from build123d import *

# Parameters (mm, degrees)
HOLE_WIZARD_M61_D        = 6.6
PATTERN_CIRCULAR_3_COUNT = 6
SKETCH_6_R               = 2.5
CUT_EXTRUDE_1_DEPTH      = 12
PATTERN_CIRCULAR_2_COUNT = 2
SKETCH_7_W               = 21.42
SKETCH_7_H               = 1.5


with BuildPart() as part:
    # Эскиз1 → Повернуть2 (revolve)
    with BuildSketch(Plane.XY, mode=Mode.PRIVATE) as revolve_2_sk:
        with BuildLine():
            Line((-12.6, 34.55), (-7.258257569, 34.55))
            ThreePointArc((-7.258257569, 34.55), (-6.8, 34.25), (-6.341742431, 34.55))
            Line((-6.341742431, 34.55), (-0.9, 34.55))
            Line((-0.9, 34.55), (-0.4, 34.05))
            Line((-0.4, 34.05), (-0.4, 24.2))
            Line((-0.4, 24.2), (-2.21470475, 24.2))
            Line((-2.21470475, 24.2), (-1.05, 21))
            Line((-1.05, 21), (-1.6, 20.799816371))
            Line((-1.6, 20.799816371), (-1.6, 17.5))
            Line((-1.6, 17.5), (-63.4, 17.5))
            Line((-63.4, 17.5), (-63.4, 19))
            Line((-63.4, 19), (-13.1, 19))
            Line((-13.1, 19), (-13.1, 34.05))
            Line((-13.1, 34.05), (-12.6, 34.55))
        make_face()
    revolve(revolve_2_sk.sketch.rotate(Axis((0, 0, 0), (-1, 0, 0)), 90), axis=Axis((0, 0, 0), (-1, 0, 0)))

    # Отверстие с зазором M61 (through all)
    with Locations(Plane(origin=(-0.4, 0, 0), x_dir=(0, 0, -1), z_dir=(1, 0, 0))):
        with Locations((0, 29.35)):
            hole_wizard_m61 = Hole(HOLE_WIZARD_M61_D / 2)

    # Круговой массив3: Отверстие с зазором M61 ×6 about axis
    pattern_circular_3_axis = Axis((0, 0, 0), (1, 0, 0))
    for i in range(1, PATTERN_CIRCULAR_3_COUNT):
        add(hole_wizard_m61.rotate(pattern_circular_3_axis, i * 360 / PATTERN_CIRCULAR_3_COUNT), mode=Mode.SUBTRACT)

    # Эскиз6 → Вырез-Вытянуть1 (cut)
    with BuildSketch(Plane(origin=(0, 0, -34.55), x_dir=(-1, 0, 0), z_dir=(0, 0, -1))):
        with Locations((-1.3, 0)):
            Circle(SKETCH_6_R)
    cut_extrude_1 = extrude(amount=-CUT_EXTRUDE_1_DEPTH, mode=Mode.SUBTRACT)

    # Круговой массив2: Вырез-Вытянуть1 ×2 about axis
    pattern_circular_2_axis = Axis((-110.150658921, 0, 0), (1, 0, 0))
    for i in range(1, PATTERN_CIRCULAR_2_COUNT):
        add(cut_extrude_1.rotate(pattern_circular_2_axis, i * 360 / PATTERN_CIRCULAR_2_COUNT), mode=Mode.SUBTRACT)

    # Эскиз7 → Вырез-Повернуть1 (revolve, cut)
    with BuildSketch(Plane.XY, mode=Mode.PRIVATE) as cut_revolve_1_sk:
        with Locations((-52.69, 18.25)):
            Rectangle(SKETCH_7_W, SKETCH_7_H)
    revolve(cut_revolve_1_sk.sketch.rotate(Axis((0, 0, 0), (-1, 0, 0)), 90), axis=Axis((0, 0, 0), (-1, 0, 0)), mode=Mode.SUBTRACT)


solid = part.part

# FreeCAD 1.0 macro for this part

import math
import FreeCAD as App
import Part
import Sketcher
Q = App.Units.Quantity


def add_polygon(sketch, points):
    """Adds a closed chain of lines whose ends are joined by coincident constraints."""
    first, n = sketch.GeometryCount, len(points)
    for a, b in zip(points, points[1:] + points[:1]):
        sketch.addGeometry(Part.LineSegment(App.Vector(*a, 0), App.Vector(*b, 0)), False)
    for i in range(n):
        sketch.addConstraint(Sketcher.Constraint("Coincident", first + i, 2, first + (i + 1) % n, 1))

doc = App.newDocument("Part")
body = doc.addObject("PartDesign::Body", "Body")

# Sketch on XY plane
sketch1 = doc.addObject("Sketcher::SketchObject", "Sketch")
body.addObject(sketch1)
sketch1.AttachmentSupport = (doc.XY_Plane, [""])
sketch1.MapMode = "FlatFace"
sketch1.addGeometry(Part.LineSegment(App.Vector(-7.26, 34.55, 0), App.Vector(-12.6, 34.55, 0)), False)
sketch1.addGeometry(Part.LineSegment(App.Vector(-12.6, 34.55, 0), App.Vector(-13.1, 34.05, 0)), False)
sketch1.addGeometry(Part.LineSegment(App.Vector(-13.1, 34.05, 0), App.Vector(-13.1, 19, 0)), False)
sketch1.addGeometry(Part.LineSegment(App.Vector(-13.1, 19, 0), App.Vector(-63.4, 19, 0)), False)
sketch1.addGeometry(Part.LineSegment(App.Vector(-63.4, 19, 0), App.Vector(-63.4, 17.5, 0)), False)
sketch1.addGeometry(Part.LineSegment(App.Vector(-63.4, 17.5, 0), App.Vector(-1.6, 17.5, 0)), False)
sketch1.addGeometry(Part.LineSegment(App.Vector(-1.6, 17.5, 0), App.Vector(-1.6, 20.8, 0)), False)
sketch1.addGeometry(Part.LineSegment(App.Vector(-1.6, 20.8, 0), App.Vector(-1.05, 21, 0)), False)
sketch1.addGeometry(Part.LineSegment(App.Vector(-1.05, 21, 0), App.Vector(-2.21, 24.2, 0)), False)
sketch1.addGeometry(Part.LineSegment(App.Vector(-2.21, 24.2, 0), App.Vector(-0.4, 24.2, 0)), False)
sketch1.addGeometry(Part.LineSegment(App.Vector(-0.4, 24.2, 0), App.Vector(-0.4, 34.05, 0)), False)
sketch1.addGeometry(Part.LineSegment(App.Vector(-0.4, 34.05, 0), App.Vector(-0.9, 34.55, 0)), False)
sketch1.addGeometry(Part.LineSegment(App.Vector(-0.9, 34.55, 0), App.Vector(-6.34, 34.55, 0)), False)
sketch1.addGeometry(Part.ArcOfCircle(Part.Circle(App.Vector(-6.8, 34.75, 0), App.Vector(0, 0, 1), 0.5), math.radians(-156), math.radians(-24)), False)
sketch1.addConstraint(Sketcher.Constraint("Coincident", 0, 2, 1, 1))
sketch1.addConstraint(Sketcher.Constraint("Coincident", 1, 2, 2, 1))
sketch1.addConstraint(Sketcher.Constraint("Coincident", 2, 2, 3, 1))
sketch1.addConstraint(Sketcher.Constraint("Coincident", 3, 2, 4, 1))
sketch1.addConstraint(Sketcher.Constraint("Coincident", 4, 2, 5, 1))
sketch1.addConstraint(Sketcher.Constraint("Coincident", 5, 2, 6, 1))
sketch1.addConstraint(Sketcher.Constraint("Coincident", 6, 2, 7, 1))
sketch1.addConstraint(Sketcher.Constraint("Coincident", 7, 2, 8, 1))
sketch1.addConstraint(Sketcher.Constraint("Coincident", 8, 2, 9, 1))
sketch1.addConstraint(Sketcher.Constraint("Coincident", 9, 2, 10, 1))
sketch1.addConstraint(Sketcher.Constraint("Coincident", 10, 2, 11, 1))
sketch1.addConstraint(Sketcher.Constraint("Coincident", 11, 2, 12, 1))
sketch1.addConstraint(Sketcher.Constraint("Coincident", 12, 2, 13, 2))
sketch1.addConstraint(Sketcher.Constraint("Coincident", 13, 1, 0, 1))
sketch1.addConstraint(Sketcher.Constraint("Horizontal", 0))
sketch1.addConstraint(Sketcher.Constraint("Vertical", 2))
sketch1.addConstraint(Sketcher.Constraint("Horizontal", 3))
sketch1.addConstraint(Sketcher.Constraint("Vertical", 4))
sketch1.addConstraint(Sketcher.Constraint("Horizontal", 5))
sketch1.addConstraint(Sketcher.Constraint("Vertical", 6))
sketch1.addConstraint(Sketcher.Constraint("Horizontal", 9))
sketch1.addConstraint(Sketcher.Constraint("Vertical", 10))
sketch1.addConstraint(Sketcher.Constraint("Horizontal", 12))
sketch1.addConstraint(Sketcher.Constraint("Perpendicular", 7, 8))
sketch1.addConstraint(Sketcher.Constraint("Perpendicular", 1, 11))
sketch1.addConstraint(Sketcher.Constraint("Horizontal", 1, 2, 10, 2))
sketch1.addConstraint(Sketcher.Constraint("Horizontal", 0, 2, 11, 2))
sketch1.addConstraint(Sketcher.Constraint("Equal", 1, 11))
sketch1.addConstraint(Sketcher.Constraint("Radius", 13, Q("0.5 mm")))
sketch1.addConstraint(Sketcher.Constraint("Angle", 7, Q("20 deg")))
sketch1.addConstraint(Sketcher.Constraint("DistanceX", 3, 2, 3, 1, Q("50.3 mm")))
sketch1.addConstraint(Sketcher.Constraint("DistanceX", 5, 1, 5, 2, Q("61.8 mm")))
sketch1.addConstraint(Sketcher.Constraint("DistanceY", 4, 2, 4, 1, Q("1.5 mm")))
sketch1.addConstraint(Sketcher.Constraint("DistanceY", -1, 1, 2, 2, Q("19 mm")))
sketch1.addConstraint(Sketcher.Constraint("DistanceY", -1, 1, 7, 2, Q("21 mm")))
sketch1.addConstraint(Sketcher.Constraint("DistanceX", 0, 2, 5, 2, Q("11 mm")))
sketch1.addConstraint(Sketcher.Constraint("DistanceY", 2, 2, 2, 1, Q("15.05 mm")))
sketch1.addConstraint(Sketcher.Constraint("DistanceY", 10, 1, 10, 2, Q("9.85 mm")))
sketch1.addConstraint(Sketcher.Constraint("DistanceX", 13, 3, -1, 1, Q("6.8 mm")))
sketch1.addConstraint(Sketcher.Constraint("DistanceX", 0, 2, -1, 1, Q("12.6 mm")))
sketch1.addConstraint(Sketcher.Constraint("DistanceX", 9, 2, -1, 1, Q("0.4 mm")))
sketch1.addConstraint(Sketcher.Constraint("DistanceY", 0, 2, 13, 3, Q("0.2 mm")))
sketch1.addConstraint(Sketcher.Constraint("DistanceX", 7, 2, -1, 1, Q("1.05 mm")))
revolution = doc.addObject("PartDesign::Revolution", "Revolution")
body.addObject(revolution)
revolution.Profile = sketch1
revolution.ReferenceAxis = (sketch1, ["H_Axis"])
revolution.Angle = 360

# Sketch on YZ plane
sketch2 = doc.addObject("Sketcher::SketchObject", "Sketch001")
body.addObject(sketch2)
sketch2.AttachmentSupport = (doc.YZ_Plane, [""])
sketch2.MapMode = "FlatFace"
sketch2.AttachmentOffset = App.Placement(App.Vector(0, 0, -0.4), App.Rotation())
sketch2.addGeometry(Part.Circle(App.Vector(29.4, 0, 0), App.Vector(0, 0, 1), 3.3), False)
sketch2.addConstraint(Sketcher.Constraint("PointOnObject", 0, 3, -1))
sketch2.addConstraint(Sketcher.Constraint("Diameter", 0, Q("6.6 mm")))
sketch2.addConstraint(Sketcher.Constraint("DistanceX", -1, 1, 0, 3, Q("29.35 mm")))
doc.recompute()
hole = doc.addObject("PartDesign::Hole", "Hole")
body.addObject(hole)
hole.Profile = sketch2
hole.ThreadType = "None"
hole.Diameter = 6.6
hole.DepthType = "ThroughAll"
doc.recompute()

polarpattern = doc.addObject("PartDesign::PolarPattern", "PolarPattern")
body.addObject(polarpattern)
polarpattern.Originals = [hole]
polarpattern.Axis = (doc.X_Axis, [""])
polarpattern.Angle = 360
polarpattern.Occurrences = 6
body.Tip = polarpattern

# Sketch on XY plane
sketch3 = doc.addObject("Sketcher::SketchObject", "Sketch002")
body.addObject(sketch3)
sketch3.AttachmentSupport = (doc.XY_Plane, [""])
sketch3.MapMode = "FlatFace"
sketch3.AttachmentOffset = App.Placement(App.Vector(0, 0, -34.55), App.Rotation())
sketch3.addGeometry(Part.Circle(App.Vector(1.3, 0, 0), App.Vector(0, 0, 1), 2.5), False)
sketch3.addConstraint(Sketcher.Constraint("PointOnObject", 0, 3, -1))
sketch3.addConstraint(Sketcher.Constraint("Diameter", 0, Q("5 mm")))
sketch3.addConstraint(Sketcher.Constraint("DistanceX", -1, 1, 0, 3, Q("1.3 mm")))
pocket1 = doc.addObject("PartDesign::Pocket", "Pocket")
body.addObject(pocket1)
pocket1.Profile = sketch3
pocket1.Length = 12
pocket1.Reversed = True
doc.recompute()

polarpattern2 = doc.addObject("PartDesign::PolarPattern", "PolarPattern001")
body.addObject(polarpattern2)
polarpattern2.Originals = [pocket1]
polarpattern2.Axis = (doc.X_Axis, [""])
polarpattern2.Angle = 360
polarpattern2.Occurrences = 2
body.Tip = polarpattern2

# Sketch on XY plane
sketch4 = doc.addObject("Sketcher::SketchObject", "Sketch003")
body.addObject(sketch4)
sketch4.AttachmentSupport = (doc.XY_Plane, [""])
sketch4.MapMode = "FlatFace"
add_polygon(sketch4, [(-63.4, 19), (-63.4, 17.5), (-42, 17.5), (-42, 19)])  # lines 0-3
sketch4.addConstraint(Sketcher.Constraint("Vertical", 0))
sketch4.addConstraint(Sketcher.Constraint("Horizontal", 1))
sketch4.addConstraint(Sketcher.Constraint("Vertical", 2))
sketch4.addConstraint(Sketcher.Constraint("Horizontal", 3))
sketch4.addConstraint(Sketcher.Constraint("DistanceY", 0, 2, 0, 1, Q("1.5 mm")))
sketch4.addConstraint(Sketcher.Constraint("DistanceY", -1, 1, 2, 2, Q("19 mm")))
sketch4.addConstraint(Sketcher.Constraint("DistanceX", 1, 1, 1, 2, Q("21.42 mm")))
sketch4.addConstraint(Sketcher.Constraint("DistanceX", 0, 2, -1, 1, Q("63.4 mm")))
groove = doc.addObject("PartDesign::Groove", "Groove")
body.addObject(groove)
groove.Profile = sketch4
groove.ReferenceAxis = (sketch4, ["H_Axis"])
groove.Angle = 360

doc.recompute()
